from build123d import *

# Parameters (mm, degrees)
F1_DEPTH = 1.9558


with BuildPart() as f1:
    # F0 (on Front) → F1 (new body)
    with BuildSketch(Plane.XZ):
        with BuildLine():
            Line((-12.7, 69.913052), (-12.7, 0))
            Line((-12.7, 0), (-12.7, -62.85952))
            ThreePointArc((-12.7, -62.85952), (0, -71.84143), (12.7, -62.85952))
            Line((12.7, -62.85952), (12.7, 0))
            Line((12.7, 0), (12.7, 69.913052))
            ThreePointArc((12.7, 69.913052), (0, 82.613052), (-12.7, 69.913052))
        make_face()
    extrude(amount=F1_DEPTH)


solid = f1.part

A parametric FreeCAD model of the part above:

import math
import FreeCAD as App
import Part
import Sketcher

V = App.Vector
Q = App.Units.Quantity

doc = App.newDocument("Part")
body = doc.addObject("PartDesign::Body", "Body")

# Sketch on XZ plane
sketch1 = body.newObject("Sketcher::SketchObject", "Sketch")
sketch1.AttachmentSupport = (doc.getObject("XZ_Plane"), [""])
sketch1.MapMode = "FlatFace"
sketch1.addGeometry([
    Part.LineSegment(V(-13, 70, 0), V(-13, -63, 0)),
    Part.ArcOfCircle(Part.Circle(V(0, -58, 0), V(0, 0, 1), 13), math.radians(-161), math.radians(-19)),
    Part.LineSegment(V(13, -63, 0), V(13, 70, 0)),
    Part.ArcOfCircle(Part.Circle(V(0, 70, 0), V(0, 0, 1), 13), math.radians(0), math.radians(180)),
], False)
sketch1.addConstraint([
    Sketcher.Constraint("Coincident", 0, 2, 1, 1),
    Sketcher.Constraint("Coincident", 1, 2, 2, 1),
    Sketcher.Constraint("Tangent", 2, 2, 3, 1),
    Sketcher.Constraint("Tangent", 3, 2, 0, 1),
    Sketcher.Constraint("Vertical", 0),
    Sketcher.Constraint("Vertical", 2),
    Sketcher.Constraint("Symmetric", 0, 2, 1, 2, -2),
    Sketcher.Constraint("Radius", 3, Q("0.5 in")),
    Sketcher.Constraint("Radius", 1, 13.469558),
    Sketcher.Constraint("DistanceY", 0, 2, 0, 1, 132.772572),
    Sketcher.Constraint("DistanceY", -1, 1, 3, 3, 69.913052),
])
pad1 = body.newObject("PartDesign::Pad", "Pad")
pad1.Profile = sketch1
pad1.Length = Q("0.077 in")

doc.recompute()
